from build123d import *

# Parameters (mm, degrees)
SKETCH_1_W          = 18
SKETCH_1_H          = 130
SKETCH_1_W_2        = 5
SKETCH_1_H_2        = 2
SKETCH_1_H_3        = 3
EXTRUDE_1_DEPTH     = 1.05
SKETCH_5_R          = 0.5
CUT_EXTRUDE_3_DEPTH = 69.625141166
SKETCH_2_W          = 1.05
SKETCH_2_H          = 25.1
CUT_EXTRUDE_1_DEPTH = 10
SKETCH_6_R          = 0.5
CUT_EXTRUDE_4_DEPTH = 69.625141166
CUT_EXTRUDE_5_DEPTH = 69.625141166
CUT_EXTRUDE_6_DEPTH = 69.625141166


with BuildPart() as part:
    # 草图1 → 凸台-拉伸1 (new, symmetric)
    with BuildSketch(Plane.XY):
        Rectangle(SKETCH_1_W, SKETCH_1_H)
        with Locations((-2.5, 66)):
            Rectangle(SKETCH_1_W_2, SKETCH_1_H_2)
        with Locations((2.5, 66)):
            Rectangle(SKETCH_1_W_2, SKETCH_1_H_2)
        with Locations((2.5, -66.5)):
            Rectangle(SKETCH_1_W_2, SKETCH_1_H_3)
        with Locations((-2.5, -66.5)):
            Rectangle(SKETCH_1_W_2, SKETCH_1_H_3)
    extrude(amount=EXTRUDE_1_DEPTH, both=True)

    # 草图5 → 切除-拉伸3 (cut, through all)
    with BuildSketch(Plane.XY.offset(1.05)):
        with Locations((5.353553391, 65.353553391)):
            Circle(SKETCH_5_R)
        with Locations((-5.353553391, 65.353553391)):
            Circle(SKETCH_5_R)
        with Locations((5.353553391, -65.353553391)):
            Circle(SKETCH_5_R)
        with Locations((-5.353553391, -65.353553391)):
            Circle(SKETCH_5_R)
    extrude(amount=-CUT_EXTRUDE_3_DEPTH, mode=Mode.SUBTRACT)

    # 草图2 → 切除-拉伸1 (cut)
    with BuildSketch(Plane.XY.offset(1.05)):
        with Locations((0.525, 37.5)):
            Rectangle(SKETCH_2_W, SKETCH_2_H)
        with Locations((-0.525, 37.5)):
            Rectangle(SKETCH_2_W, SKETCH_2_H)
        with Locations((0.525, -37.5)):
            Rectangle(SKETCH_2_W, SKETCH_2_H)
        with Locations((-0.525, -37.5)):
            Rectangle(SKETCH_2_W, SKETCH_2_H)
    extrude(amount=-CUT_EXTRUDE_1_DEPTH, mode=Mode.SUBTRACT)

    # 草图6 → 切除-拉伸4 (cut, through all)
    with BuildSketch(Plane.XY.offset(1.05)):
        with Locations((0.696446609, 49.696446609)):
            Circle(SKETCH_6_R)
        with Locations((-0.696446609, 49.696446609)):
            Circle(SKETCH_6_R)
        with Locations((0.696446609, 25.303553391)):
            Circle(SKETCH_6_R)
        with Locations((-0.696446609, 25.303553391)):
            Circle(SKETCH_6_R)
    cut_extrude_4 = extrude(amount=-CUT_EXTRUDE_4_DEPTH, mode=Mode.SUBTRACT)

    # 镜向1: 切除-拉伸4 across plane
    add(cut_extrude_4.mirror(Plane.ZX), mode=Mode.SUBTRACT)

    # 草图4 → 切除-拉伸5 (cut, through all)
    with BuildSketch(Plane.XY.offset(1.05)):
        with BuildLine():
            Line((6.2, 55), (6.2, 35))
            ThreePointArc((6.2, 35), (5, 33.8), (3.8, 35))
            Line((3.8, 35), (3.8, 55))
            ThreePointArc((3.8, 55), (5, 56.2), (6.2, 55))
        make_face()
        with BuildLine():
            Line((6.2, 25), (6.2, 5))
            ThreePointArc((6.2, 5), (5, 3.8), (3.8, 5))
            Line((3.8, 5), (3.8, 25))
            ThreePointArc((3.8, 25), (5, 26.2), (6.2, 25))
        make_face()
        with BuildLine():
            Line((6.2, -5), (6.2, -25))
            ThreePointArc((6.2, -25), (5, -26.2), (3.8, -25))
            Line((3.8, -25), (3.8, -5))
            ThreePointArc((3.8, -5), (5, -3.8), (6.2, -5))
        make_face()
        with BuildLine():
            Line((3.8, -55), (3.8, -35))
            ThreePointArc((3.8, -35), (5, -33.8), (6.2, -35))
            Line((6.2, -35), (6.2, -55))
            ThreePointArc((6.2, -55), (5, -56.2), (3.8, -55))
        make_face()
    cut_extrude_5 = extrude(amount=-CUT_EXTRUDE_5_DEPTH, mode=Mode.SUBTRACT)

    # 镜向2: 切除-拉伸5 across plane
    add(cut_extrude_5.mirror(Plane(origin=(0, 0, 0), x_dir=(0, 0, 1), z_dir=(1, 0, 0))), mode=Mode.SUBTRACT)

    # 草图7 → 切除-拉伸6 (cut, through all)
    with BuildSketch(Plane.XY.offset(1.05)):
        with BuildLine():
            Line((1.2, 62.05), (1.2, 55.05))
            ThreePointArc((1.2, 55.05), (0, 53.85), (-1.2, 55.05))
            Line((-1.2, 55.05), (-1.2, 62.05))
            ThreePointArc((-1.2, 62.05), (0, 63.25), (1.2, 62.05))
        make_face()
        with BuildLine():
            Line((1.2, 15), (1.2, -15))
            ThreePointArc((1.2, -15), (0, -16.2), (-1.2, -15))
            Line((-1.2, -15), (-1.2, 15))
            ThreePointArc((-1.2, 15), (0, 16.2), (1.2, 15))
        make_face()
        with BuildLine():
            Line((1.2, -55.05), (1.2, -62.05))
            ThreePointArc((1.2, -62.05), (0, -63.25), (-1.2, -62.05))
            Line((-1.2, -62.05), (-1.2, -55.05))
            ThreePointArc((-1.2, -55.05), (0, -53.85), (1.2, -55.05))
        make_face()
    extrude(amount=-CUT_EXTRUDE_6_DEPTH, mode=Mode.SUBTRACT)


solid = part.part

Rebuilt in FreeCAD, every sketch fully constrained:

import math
import FreeCAD as App
import Part
import Sketcher
from FreeCAD import Vector

doc = App.newDocument("Part")
body = doc.addObject("PartDesign::Body", "Body")

# Sketch on XY plane
sketch1 = body.newObject("Sketcher::SketchObject", "Sketch")
sketch1.AttachmentSupport = (doc.getObject("XY_Plane"), [""])
sketch1.MapMode = "FlatFace"
sketch1.addGeometry([
    Part.LineSegment(Vector(-9, 65, 0), Vector(-9, -65, 0)),  # 0
    Part.LineSegment(Vector(-9, -65, 0), Vector(-5, -65, 0)),  # 1
    Part.LineSegment(Vector(-5, -65, 0), Vector(-5, -68, 0)),  # 2
    Part.LineSegment(Vector(-5, -68, 0), Vector(5, -68, 0)),  # 3
    Part.LineSegment(Vector(5, -68, 0), Vector(5, -65, 0)),  # 4
    Part.LineSegment(Vector(5, -65, 0), Vector(9, -65, 0)),  # 5
    Part.LineSegment(Vector(9, -65, 0), Vector(9, 65, 0)),  # 6
    Part.LineSegment(Vector(9, 65, 0), Vector(5, 65, 0)),  # 7
    Part.LineSegment(Vector(5, 65, 0), Vector(5, 67, 0)),  # 8
    Part.LineSegment(Vector(5, 67, 0), Vector(-5, 67, 0)),  # 9
    Part.LineSegment(Vector(-5, 67, 0), Vector(-5, 65, 0)),  # 10
    Part.LineSegment(Vector(-5, 65, 0), Vector(-9, 65, 0)),  # 11
], False)
sketch1.addConstraint([
    Sketcher.Constraint("Coincident", 0, 2, 1, 1),
    Sketcher.Constraint("Coincident", 1, 2, 2, 1),
    Sketcher.Constraint("Coincident", 2, 2, 3, 1),
    Sketcher.Constraint("Coincident", 3, 2, 4, 1),
    Sketcher.Constraint("Coincident", 4, 2, 5, 1),
    Sketcher.Constraint("Coincident", 5, 2, 6, 1),
    Sketcher.Constraint("Coincident", 6, 2, 7, 1),
    Sketcher.Constraint("Coincident", 7, 2, 8, 1),
    Sketcher.Constraint("Coincident", 8, 2, 9, 1),
    Sketcher.Constraint("Coincident", 9, 2, 10, 1),
    Sketcher.Constraint("Coincident", 10, 2, 11, 1),
    Sketcher.Constraint("Coincident", 11, 2, 0, 1),
    Sketcher.Constraint("Vertical", 0),
    Sketcher.Constraint("Horizontal", 1),
    Sketcher.Constraint("Vertical", 2),
    Sketcher.Constraint("Horizontal", 3),
    Sketcher.Constraint("Vertical", 4),
    Sketcher.Constraint("Horizontal", 5),
    Sketcher.Constraint("Vertical", 6),
    Sketcher.Constraint("Horizontal", 7),
    Sketcher.Constraint("Vertical", 8),
    Sketcher.Constraint("Horizontal", 9),
    Sketcher.Constraint("Vertical", 10),
    Sketcher.Constraint("Horizontal", 11),
    Sketcher.Constraint("Symmetric", 0, 2, 6, 2, -1, 1),
    Sketcher.Constraint("Symmetric", 4, 2, 10, 2, -1, 1),
    Sketcher.Constraint("Symmetric", 1, 2, 4, 2, -2),
    Sketcher.Constraint("Vertical", 4, 2, 7, 2),
    Sketcher.Constraint("DistanceX", 1, 1, 1, 2, 4.0),
    Sketcher.Constraint("DistanceX", 3, 1, 3, 2, 10.0),
    Sketcher.Constraint("DistanceY", 0, 2, 0, 1, 130.0),
    Sketcher.Constraint("DistanceY", 2, 2, 2, 1, 3.0),
    Sketcher.Constraint("DistanceY", 8, 1, 8, 2, 2.0),
])
pad1 = body.newObject("PartDesign::Pad", "Pad")
pad1.Profile = sketch1
pad1.Length = 2.1
pad1.Midplane = True

# Sketch on XY plane
sketch2 = body.newObject("Sketcher::SketchObject", "Sketch001")
sketch2.AttachmentSupport = (doc.getObject("XY_Plane"), [""])
sketch2.MapMode = "FlatFace"
sketch2.AttachmentOffset = App.Placement(Vector(0, 0, 1.05), App.Rotation())
sketch2.addGeometry([
    Part.Circle(Vector(5.353553, 65.353553, 0), Vector(0, 0, 1), 0.5),
    Part.Circle(Vector(-5.353553, 65.353553, 0), Vector(0, 0, 1), 0.5),
    Part.Circle(Vector(5.353553, -65.353553, 0), Vector(0, 0, 1), 0.5),
    Part.Circle(Vector(-5.353553, -65.353553, 0), Vector(0, 0, 1), 0.5),
], False)
sketch2.addConstraint([
    Sketcher.Constraint("Equal", 0, 1),
    Sketcher.Constraint("Equal", 1, 2),
    Sketcher.Constraint("Equal", 2, 3),
    Sketcher.Constraint("Symmetric", 1, 3, 2, 3, -1, 1),
    Sketcher.Constraint("Symmetric", 0, 3, 3, 3, -1, 1),
    Sketcher.Constraint("Symmetric", 0, 3, 1, 3, -2),
    Sketcher.Constraint("Diameter", 0, 1.0),
    Sketcher.Constraint("DistanceX", -1, 1, 0, 3, 5.353553),
    Sketcher.Constraint("DistanceY", -1, 1, 0, 3, 65.353553),
])
pocket1 = body.newObject("PartDesign::Pocket", "Pocket")
pocket1.Profile = sketch2
pocket1.Type = "ThroughAll"

# Sketch on XY plane
sketch3 = body.newObject("Sketcher::SketchObject", "Sketch002")
sketch3.AttachmentSupport = (doc.getObject("XY_Plane"), [""])
sketch3.MapMode = "FlatFace"
sketch3.AttachmentOffset = App.Placement(Vector(0, 0, 1.05), App.Rotation())
sketch3.addGeometry([
    Part.LineSegment(Vector(1.05, 24.95, 0), Vector(1.05, 50.05, 0)),  # 0
    Part.LineSegment(Vector(1.05, 50.05, 0), Vector(-1.05, 50.05, 0)),  # 1
    Part.LineSegment(Vector(-1.05, 50.05, 0), Vector(-1.05, 24.95, 0)),  # 2
    Part.LineSegment(Vector(-1.05, 24.95, 0), Vector(1.05, 24.95, 0)),  # 3
    Part.LineSegment(Vector(1.05, -50.05, 0), Vector(1.05, -24.95, 0)),  # 4
    Part.LineSegment(Vector(1.05, -24.95, 0), Vector(-1.05, -24.95, 0)),  # 5
    Part.LineSegment(Vector(-1.05, -24.95, 0), Vector(-1.05, -50.05, 0)),  # 6
    Part.LineSegment(Vector(-1.05, -50.05, 0), Vector(1.05, -50.05, 0)),  # 7
], False)
sketch3.addConstraint([
    Sketcher.Constraint("Coincident", 0, 2, 1, 1),
    Sketcher.Constraint("Coincident", 1, 2, 2, 1),
    Sketcher.Constraint("Coincident", 2, 2, 3, 1),
    Sketcher.Constraint("Coincident", 3, 2, 0, 1),
    Sketcher.Constraint("Coincident", 4, 2, 5, 1),
    Sketcher.Constraint("Coincident", 5, 2, 6, 1),
    Sketcher.Constraint("Coincident", 6, 2, 7, 1),
    Sketcher.Constraint("Coincident", 7, 2, 4, 1),
    Sketcher.Constraint("Vertical", 0),
    Sketcher.Constraint("Horizontal", 1),
    Sketcher.Constraint("Vertical", 2),
    Sketcher.Constraint("Horizontal", 3),
    Sketcher.Constraint("Vertical", 4),
    Sketcher.Constraint("Horizontal", 5),
    Sketcher.Constraint("Vertical", 6),
    Sketcher.Constraint("Horizontal", 7),
    Sketcher.Constraint("Symmetric", 2, 2, 4, 2, -1, 1),
    Sketcher.Constraint("Symmetric", 0, 2, 6, 2, -1, 1),
    Sketcher.Constraint("Vertical", 3, 2, 4, 2),
    Sketcher.Constraint("DistanceX", 1, 2, 1, 1, 2.1),
    Sketcher.Constraint("DistanceY", 0, 1, 0, 2, 25.1),
    Sketcher.Constraint("DistanceY", 4, 2, 0, 2, 75.0),
])
pocket2 = body.newObject("PartDesign::Pocket", "Pocket001")
pocket2.Profile = sketch3
pocket2.Length = 10

# Sketch on XY plane
sketch4 = body.newObject("Sketcher::SketchObject", "Sketch003")
sketch4.AttachmentSupport = (doc.getObject("XY_Plane"), [""])
sketch4.MapMode = "FlatFace"
sketch4.AttachmentOffset = App.Placement(Vector(0, 0, 1.05), App.Rotation())
sketch4.addGeometry([
    Part.Circle(Vector(0.696447, 49.696447, 0), Vector(0, 0, 1), 0.5),
    Part.Circle(Vector(-0.696447, 49.696447, 0), Vector(0, 0, 1), 0.5),
    Part.Circle(Vector(0.696447, 25.303553, 0), Vector(0, 0, 1), 0.5),
    Part.Circle(Vector(-0.696447, 25.303553, 0), Vector(0, 0, 1), 0.5),
], False)
sketch4.addConstraint([
    Sketcher.Constraint("Equal", 0, 1),
    Sketcher.Constraint("Equal", 1, 2),
    Sketcher.Constraint("Equal", 2, 3),
    Sketcher.Constraint("Symmetric", 0, 3, 1, 3, -2),
    Sketcher.Constraint("Symmetric", 2, 3, 3, 3, -2),
    Sketcher.Constraint("Vertical", 0, 3, 2, 3),
    Sketcher.Constraint("Diameter", 0, 1.0),
    Sketcher.Constraint("DistanceX", -1, 1, 0, 3, 0.696447),
    Sketcher.Constraint("DistanceY", -1, 1, 0, 3, 49.696447),
    Sketcher.Constraint("DistanceY", -1, 1, 2, 3, 25.303553),
])
pocket3 = body.newObject("PartDesign::Pocket", "Pocket002")
pocket3.Profile = sketch4
pocket3.Type = "ThroughAll"
doc.recompute()

mirrored = body.newObject("PartDesign::Mirrored", "Mirrored")
mirrored.Originals = [pocket3]
mirrored.MirrorPlane = (doc.getObject("XZ_Plane"), [""])
body.Tip = mirrored

# Sketch on XY plane
sketch5 = body.newObject("Sketcher::SketchObject", "Sketch004")
sketch5.AttachmentSupport = (doc.getObject("XY_Plane"), [""])
sketch5.MapMode = "FlatFace"
sketch5.AttachmentOffset = App.Placement(Vector(0, 0, 1.05), App.Rotation())
sketch5.addGeometry([
    Part.LineSegment(Vector(6.2, 35, 0), Vector(6.2, 55, 0)),  # 0
    Part.ArcOfCircle(Part.Circle(Vector(5, 55, 0), Vector(0, 0, 1), 1.2), math.radians(0), math.radians(180)),  # 1
    Part.LineSegment(Vector(3.8, 55, 0), Vector(3.8, 35, 0)),  # 2
    Part.ArcOfCircle(Part.Circle(Vector(5, 35, 0), Vector(0, 0, 1), 1.2), math.radians(180), math.radians(360)),  # 3
    Part.LineSegment(Vector(6.2, 5, 0), Vector(6.2, 25, 0)),  # 4
    Part.ArcOfCircle(Part.Circle(Vector(5, 25, 0), Vector(0, 0, 1), 1.2), math.radians(0), math.radians(180)),  # 5
    Part.LineSegment(Vector(3.8, 25, 0), Vector(3.8, 5, 0)),  # 6
    Part.ArcOfCircle(Part.Circle(Vector(5, 5, 0), Vector(0, 0, 1), 1.2), math.radians(180), math.radians(360)),  # 7
    Part.LineSegment(Vector(6.2, -25, 0), Vector(6.2, -5, 0)),  # 8
    Part.ArcOfCircle(Part.Circle(Vector(5, -5, 0), Vector(0, 0, 1), 1.2), math.radians(0), math.radians(180)),  # 9
    Part.LineSegment(Vector(3.8, -5, 0), Vector(3.8, -25, 0)),  # 10
    Part.ArcOfCircle(Part.Circle(Vector(5, -25, 0), Vector(0, 0, 1), 1.2), math.radians(180), math.radians(360)),  # 11
    Part.LineSegment(Vector(3.8, -35, 0), Vector(3.8, -55, 0)),  # 12
    Part.ArcOfCircle(Part.Circle(Vector(5, -55, 0), Vector(0, 0, 1), 1.2), math.radians(180), math.radians(360)),  # 13
    Part.LineSegment(Vector(6.2, -55, 0), Vector(6.2, -35, 0)),  # 14
    Part.ArcOfCircle(Part.Circle(Vector(5, -35, 0), Vector(0, 0, 1), 1.2), math.radians(0), math.radians(180)),  # 15
], False)
sketch5.addConstraint([
    Sketcher.Constraint("Tangent", 0, 2, 1, 1),
    Sketcher.Constraint("Tangent", 1, 2, 2, 1),
    Sketcher.Constraint("Tangent", 2, 2, 3, 1),
    Sketcher.Constraint("Tangent", 3, 2, 0, 1),
    Sketcher.Constraint("Tangent", 4, 2, 5, 1),
    Sketcher.Constraint("Tangent", 5, 2, 6, 1),
    Sketcher.Constraint("Tangent", 6, 2, 7, 1),
    Sketcher.Constraint("Tangent", 7, 2, 4, 1),
    Sketcher.Constraint("Tangent", 8, 2, 9, 1),
    Sketcher.Constraint("Tangent", 9, 2, 10, 1),
    Sketcher.Constraint("Tangent", 10, 2, 11, 1),
    Sketcher.Constraint("Tangent", 11, 2, 8, 1),
    Sketcher.Constraint("Tangent", 12, 2, 13, 1),
    Sketcher.Constraint("Tangent", 13, 2, 14, 1),
    Sketcher.Constraint("Tangent", 14, 2, 15, 1),
    Sketcher.Constraint("Tangent", 15, 2, 12, 1),
    Sketcher.Constraint("Vertical", 0),
    Sketcher.Constraint("Vertical", 2),
    Sketcher.Constraint("Vertical", 4),
    Sketcher.Constraint("Vertical", 6),
    Sketcher.Constraint("Vertical", 8),
    Sketcher.Constraint("Vertical", 10),
    Sketcher.Constraint("Vertical", 12),
    Sketcher.Constraint("Vertical", 14),
    Sketcher.Constraint("Equal", 3, 5),
    Sketcher.Constraint("Equal", 7, 9),
    Sketcher.Constraint("Equal", 11, 13),
    Sketcher.Constraint("Symmetric", 7, 3, 9, 3, -1),
    Sketcher.Constraint("Symmetric", 1, 3, 13, 3, -1),
    Sketcher.Constraint("Vertical", 3, 3, 5, 3),
    Sketcher.Constraint("Equal", 2, 4),
    Sketcher.Constraint("Equal", 6, 8),
    Sketcher.Constraint("Equal", 10, 12),
    Sketcher.Constraint("Radius", 1, 1.2),
    Sketcher.Constraint("DistanceY", 0, 1, 0, 2, 20.0),
    Sketcher.Constraint("DistanceX", -1, 1, 1, 3, 5.0),
    Sketcher.Constraint("DistanceY", -1, 1, 1, 3, 55.0),
    Sketcher.Constraint("DistanceY", -1, 1, 5, 3, 25.0),
])
pocket4 = body.newObject("PartDesign::Pocket", "Pocket003")
pocket4.Profile = sketch5
pocket4.Type = "ThroughAll"
doc.recompute()

mirrored2 = body.newObject("PartDesign::Mirrored", "Mirrored001")
mirrored2.Originals = [pocket4]
mirrored2.MirrorPlane = (doc.getObject("YZ_Plane"), [""])
body.Tip = mirrored2

# Sketch on XY plane
sketch6 = body.newObject("Sketcher::SketchObject", "Sketch005")
sketch6.AttachmentSupport = (doc.getObject("XY_Plane"), [""])
sketch6.MapMode = "FlatFace"
sketch6.AttachmentOffset = App.Placement(Vector(0, 0, 1.05), App.Rotation())
sketch6.addGeometry([
    Part.LineSegment(Vector(1.2, 55.05, 0), Vector(1.2, 62.05, 0)),  # 0
    Part.ArcOfCircle(Part.Circle(Vector(0, 62.05, 0), Vector(0, 0, 1), 1.2), math.radians(0), math.radians(180)),  # 1
    Part.LineSegment(Vector(-1.2, 62.05, 0), Vector(-1.2, 55.05, 0)),  # 2
    Part.ArcOfCircle(Part.Circle(Vector(0, 55.05, 0), Vector(0, 0, 1), 1.2), math.radians(180), math.radians(360)),  # 3
    Part.LineSegment(Vector(1.2, -15, 0), Vector(1.2, 15, 0)),  # 4
    Part.ArcOfCircle(Part.Circle(Vector(0, 15, 0), Vector(0, 0, 1), 1.2), math.radians(0), math.radians(180)),  # 5
    Part.LineSegment(Vector(-1.2, 15, 0), Vector(-1.2, -15, 0)),  # 6
    Part.ArcOfCircle(Part.Circle(Vector(0, -15, 0), Vector(0, 0, 1), 1.2), math.radians(180), math.radians(360)),  # 7
    Part.LineSegment(Vector(1.2, -62.05, 0), Vector(1.2, -55.05, 0)),  # 8
    Part.ArcOfCircle(Part.Circle(Vector(0, -55.05, 0), Vector(0, 0, 1), 1.2), math.radians(0), math.radians(180)),  # 9
    Part.LineSegment(Vector(-1.2, -55.05, 0), Vector(-1.2, -62.05, 0)),  # 10
    Part.ArcOfCircle(Part.Circle(Vector(0, -62.05, 0), Vector(0, 0, 1), 1.2), math.radians(180), math.radians(360)),  # 11
], False)
sketch6.addConstraint([
    Sketcher.Constraint("Tangent", 0, 2, 1, 1),
    Sketcher.Constraint("Tangent", 1, 2, 2, 1),
    Sketcher.Constraint("Tangent", 2, 2, 3, 1),
    Sketcher.Constraint("Tangent", 3, 2, 0, 1),
    Sketcher.Constraint("Tangent", 4, 2, 5, 1),
    Sketcher.Constraint("Tangent", 5, 2, 6, 1),
    Sketcher.Constraint("Tangent", 6, 2, 7, 1),
    Sketcher.Constraint("Tangent", 7, 2, 4, 1),
    Sketcher.Constraint("Tangent", 8, 2, 9, 1),
    Sketcher.Constraint("Tangent", 9, 2, 10, 1),
    Sketcher.Constraint("Tangent", 10, 2, 11, 1),
    Sketcher.Constraint("Tangent", 11, 2, 8, 1),
    Sketcher.Constraint("Vertical", 0),
    Sketcher.Constraint("Vertical", 2),
    Sketcher.Constraint("Vertical", 4),
    Sketcher.Constraint("Vertical", 6),
    Sketcher.Constraint("Vertical", 8),
    Sketcher.Constraint("Vertical", 10),
    Sketcher.Constraint("Equal", 3, 5),
    Sketcher.Constraint("Equal", 7, 9),
    Sketcher.Constraint("Symmetric", 5, 3, 7, 3, -1, 1),
    Sketcher.Constraint("Symmetric", 3, 3, 9, 3, -1, 1),
    Sketcher.Constraint("Symmetric", 1, 3, 11, 3, -1),
    Sketcher.Constraint("Radius", 1, 1.2),
    Sketcher.Constraint("DistanceY", 0, 1, 0, 2, 7.0),
    Sketcher.Constraint("DistanceY", 4, 1, 4, 2, 30.0),
    Sketcher.Constraint("DistanceY", 9, 3, 3, 3, 110.1),
])
pocket5 = body.newObject("PartDesign::Pocket", "Pocket004")
pocket5.Profile = sketch6
pocket5.Type = "ThroughAll"

doc.recompute()
